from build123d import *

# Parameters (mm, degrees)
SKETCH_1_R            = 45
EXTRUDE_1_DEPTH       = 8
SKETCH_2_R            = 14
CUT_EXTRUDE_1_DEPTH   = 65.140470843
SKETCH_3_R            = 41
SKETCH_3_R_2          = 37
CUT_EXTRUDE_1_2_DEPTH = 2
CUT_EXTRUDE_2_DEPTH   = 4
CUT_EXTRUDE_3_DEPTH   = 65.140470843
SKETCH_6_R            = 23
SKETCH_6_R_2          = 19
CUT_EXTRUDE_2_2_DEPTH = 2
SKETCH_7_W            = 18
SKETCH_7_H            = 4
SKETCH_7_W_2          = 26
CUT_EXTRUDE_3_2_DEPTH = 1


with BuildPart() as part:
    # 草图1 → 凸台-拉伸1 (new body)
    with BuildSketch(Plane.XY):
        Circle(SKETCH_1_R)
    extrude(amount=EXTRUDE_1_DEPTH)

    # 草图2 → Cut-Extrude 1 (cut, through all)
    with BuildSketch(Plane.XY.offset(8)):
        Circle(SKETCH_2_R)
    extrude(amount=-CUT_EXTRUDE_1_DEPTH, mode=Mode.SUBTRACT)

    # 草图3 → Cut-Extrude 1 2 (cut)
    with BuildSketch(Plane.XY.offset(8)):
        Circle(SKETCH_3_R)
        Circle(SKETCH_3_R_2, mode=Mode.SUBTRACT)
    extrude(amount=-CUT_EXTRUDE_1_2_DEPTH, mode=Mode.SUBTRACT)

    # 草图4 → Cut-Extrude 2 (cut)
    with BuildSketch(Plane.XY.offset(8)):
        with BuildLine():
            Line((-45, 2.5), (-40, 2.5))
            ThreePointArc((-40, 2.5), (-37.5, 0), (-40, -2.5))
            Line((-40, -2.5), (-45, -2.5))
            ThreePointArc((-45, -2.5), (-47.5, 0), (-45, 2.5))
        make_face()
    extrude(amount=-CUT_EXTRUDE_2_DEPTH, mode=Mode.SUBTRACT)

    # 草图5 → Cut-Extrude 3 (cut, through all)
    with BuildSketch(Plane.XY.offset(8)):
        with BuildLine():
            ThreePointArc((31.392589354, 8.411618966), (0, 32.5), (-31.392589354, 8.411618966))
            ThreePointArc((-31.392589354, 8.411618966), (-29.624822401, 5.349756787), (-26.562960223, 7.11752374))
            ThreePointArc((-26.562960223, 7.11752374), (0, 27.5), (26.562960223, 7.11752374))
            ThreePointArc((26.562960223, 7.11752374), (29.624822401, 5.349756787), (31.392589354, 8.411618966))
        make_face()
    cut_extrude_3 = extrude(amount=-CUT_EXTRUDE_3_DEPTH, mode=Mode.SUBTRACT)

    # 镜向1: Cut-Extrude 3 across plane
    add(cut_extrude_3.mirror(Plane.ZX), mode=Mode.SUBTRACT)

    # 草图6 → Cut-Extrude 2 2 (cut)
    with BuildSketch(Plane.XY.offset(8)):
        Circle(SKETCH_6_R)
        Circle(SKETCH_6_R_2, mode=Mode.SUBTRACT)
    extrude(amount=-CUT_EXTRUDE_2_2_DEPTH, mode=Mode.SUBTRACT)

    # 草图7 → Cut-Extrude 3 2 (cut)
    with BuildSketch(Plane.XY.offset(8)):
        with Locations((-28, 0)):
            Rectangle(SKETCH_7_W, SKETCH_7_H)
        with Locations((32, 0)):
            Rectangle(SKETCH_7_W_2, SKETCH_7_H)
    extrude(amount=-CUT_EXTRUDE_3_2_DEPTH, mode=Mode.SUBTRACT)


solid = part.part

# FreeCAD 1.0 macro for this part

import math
import FreeCAD as App
import Part
import Sketcher
from FreeCAD import Vector
Q = App.Units.Quantity


def add_polygon(sketch, points):
    """Adds a closed chain of lines whose ends are joined by coincident constraints."""
    first, n = sketch.GeometryCount, len(points)
    for a, b in zip(points, points[1:] + points[:1]):
        sketch.addGeometry(Part.LineSegment(App.Vector(*a, 0), App.Vector(*b, 0)), False)
    for i in range(n):
        sketch.addConstraint(Sketcher.Constraint("Coincident", first + i, 2, first + (i + 1) % n, 1))

doc = App.newDocument("Part")
body = doc.addObject("PartDesign::Body", "Body")

# Sketch on XY plane
sketch1 = body.newObject("Sketcher::SketchObject", "Sketch")
sketch1.AttachmentSupport = (doc.getObject("XY_Plane"), [""])
sketch1.MapMode = "FlatFace"
sketch1.addGeometry(Part.Circle(Vector(0, 0, 0), Vector(0, 0, 1), 45), False)
sketch1.addConstraint(Sketcher.Constraint("Coincident", 0, 3, -1, 1))
sketch1.addConstraint(Sketcher.Constraint("Diameter", 0, Q("90 mm")))
pad1 = body.newObject("PartDesign::Pad", "Pad")
pad1.Profile = sketch1
pad1.Length = 8

# Sketch on XY plane
sketch2 = body.newObject("Sketcher::SketchObject", "Sketch001")
sketch2.AttachmentSupport = (doc.getObject("XY_Plane"), [""])
sketch2.MapMode = "FlatFace"
sketch2.AttachmentOffset = App.Placement(Vector(0, 0, 8), App.Rotation())
sketch2.addGeometry(Part.Circle(Vector(0, 0, 0), Vector(0, 0, 1), 14), False)
sketch2.addConstraint(Sketcher.Constraint("Coincident", 0, 3, -1, 1))
sketch2.addConstraint(Sketcher.Constraint("Diameter", 0, Q("28 mm")))
pocket1 = body.newObject("PartDesign::Pocket", "Pocket")
pocket1.Profile = sketch2
pocket1.Type = "ThroughAll"

# Sketch on XY plane
sketch3 = body.newObject("Sketcher::SketchObject", "Sketch002")
sketch3.AttachmentSupport = (doc.getObject("XY_Plane"), [""])
sketch3.MapMode = "FlatFace"
sketch3.AttachmentOffset = App.Placement(Vector(0, 0, 8), App.Rotation())
sketch3.addGeometry(Part.Circle(Vector(0, 0, 0), Vector(0, 0, 1), 41), False)
sketch3.addGeometry(Part.Circle(Vector(0, 0, 0), Vector(0, 0, 1), 37), False)
sketch3.addConstraint(Sketcher.Constraint("Coincident", 0, 3, -1, 1))
sketch3.addConstraint(Sketcher.Constraint("Coincident", 1, 3, -1, 1))
sketch3.addConstraint(Sketcher.Constraint("Diameter", 0, Q("82 mm")))
sketch3.addConstraint(Sketcher.Constraint("Diameter", 1, Q("74 mm")))
pocket2 = body.newObject("PartDesign::Pocket", "Pocket001")
pocket2.Profile = sketch3
pocket2.Length = 2

# Sketch on XY plane
sketch4 = body.newObject("Sketcher::SketchObject", "Sketch003")
sketch4.AttachmentSupport = (doc.getObject("XY_Plane"), [""])
sketch4.MapMode = "FlatFace"
sketch4.AttachmentOffset = App.Placement(Vector(0, 0, 8), App.Rotation())
sketch4.addGeometry(Part.LineSegment(Vector(-40, 2.5, 0), Vector(-45, 2.5, 0)), False)
sketch4.addGeometry(Part.ArcOfCircle(Part.Circle(Vector(-45, 0, 0), Vector(0, 0, 1), 2.5), math.radians(90), math.radians(270)), False)
sketch4.addGeometry(Part.LineSegment(Vector(-45, -2.5, 0), Vector(-40, -2.5, 0)), False)
sketch4.addGeometry(Part.ArcOfCircle(Part.Circle(Vector(-40, 0, 0), Vector(0, 0, 1), 2.5), math.radians(-90), math.radians(90)), False)
sketch4.addConstraint(Sketcher.Constraint("Tangent", 0, 2, 1, 1))
sketch4.addConstraint(Sketcher.Constraint("Tangent", 1, 2, 2, 1))
sketch4.addConstraint(Sketcher.Constraint("Tangent", 2, 2, 3, 1))
sketch4.addConstraint(Sketcher.Constraint("Tangent", 3, 2, 0, 1))
sketch4.addConstraint(Sketcher.Constraint("Horizontal", 0))
sketch4.addConstraint(Sketcher.Constraint("Horizontal", 2))
sketch4.addConstraint(Sketcher.Constraint("PointOnObject", 1, 3, -1))
sketch4.addConstraint(Sketcher.Constraint("Radius", 1, Q("2.5 mm")))
sketch4.addConstraint(Sketcher.Constraint("DistanceX", 0, 2, 0, 1, Q("5 mm")))
sketch4.addConstraint(Sketcher.Constraint("DistanceX", 1, 3, -1, 1, Q("45 mm")))
pocket3 = body.newObject("PartDesign::Pocket", "Pocket002")
pocket3.Profile = sketch4
pocket3.Length = 4

# Sketch on XY plane
sketch5 = body.newObject("Sketcher::SketchObject", "Sketch004")
sketch5.AttachmentSupport = (doc.getObject("XY_Plane"), [""])
sketch5.MapMode = "FlatFace"
sketch5.AttachmentOffset = App.Placement(Vector(0, 0, 8), App.Rotation())
sketch5.addGeometry(Part.ArcOfCircle(Part.Circle(Vector(0, 0, 0), Vector(0, 0, 1), 32.5), math.radians(15), math.radians(165)), False)
sketch5.addGeometry(Part.ArcOfCircle(Part.Circle(Vector(-28.977775, 7.764571, 0), Vector(0, 0, 1), 2.5), math.radians(165), math.radians(345)), False)
sketch5.addGeometry(Part.ArcOfCircle(Part.Circle(Vector(0, 0, 0), Vector(0, 0, 1), 27.5), math.radians(15), math.radians(165)), False)
sketch5.addGeometry(Part.ArcOfCircle(Part.Circle(Vector(28.977775, 7.764571, 0), Vector(0, 0, 1), 2.5), math.radians(-165), math.radians(15)), False)
sketch5.addConstraint(Sketcher.Constraint("Tangent", 0, 2, 1, 1))
sketch5.addConstraint(Sketcher.Constraint("Tangent", 1, 2, 2, 2))
sketch5.addConstraint(Sketcher.Constraint("Tangent", 2, 1, 3, 1))
sketch5.addConstraint(Sketcher.Constraint("Tangent", 3, 2, 0, 1))
sketch5.addConstraint(Sketcher.Constraint("Coincident", 0, 3, -1, 1))
sketch5.addConstraint(Sketcher.Constraint("Coincident", 2, 3, -1, 1))
sketch5.addConstraint(Sketcher.Constraint("Horizontal", 1, 3, 3, 3))
sketch5.addConstraint(Sketcher.Constraint("Radius", 0, Q("32.5 mm")))
sketch5.addConstraint(Sketcher.Constraint("Radius", 1, Q("2.5 mm")))
sketch5.addConstraint(Sketcher.Constraint("DistanceY", -1, 1, 1, 3, Q("7.764571 mm")))
pocket4 = body.newObject("PartDesign::Pocket", "Pocket003")
pocket4.Profile = sketch5
pocket4.Type = "ThroughAll"
doc.recompute()

mirrored = body.newObject("PartDesign::Mirrored", "Mirrored")
mirrored.Originals = [pocket4]
mirrored.MirrorPlane = (doc.getObject("XZ_Plane"), [""])
body.Tip = mirrored

# Sketch on XY plane
sketch6 = body.newObject("Sketcher::SketchObject", "Sketch005")
sketch6.AttachmentSupport = (doc.getObject("XY_Plane"), [""])
sketch6.MapMode = "FlatFace"
sketch6.AttachmentOffset = App.Placement(Vector(0, 0, 8), App.Rotation())
sketch6.addGeometry(Part.Circle(Vector(0, 0, 0), Vector(0, 0, 1), 23), False)
sketch6.addGeometry(Part.Circle(Vector(0, 0, 0), Vector(0, 0, 1), 19), False)
sketch6.addConstraint(Sketcher.Constraint("Coincident", 0, 3, -1, 1))
sketch6.addConstraint(Sketcher.Constraint("Coincident", 1, 3, -1, 1))
sketch6.addConstraint(Sketcher.Constraint("Diameter", 0, Q("46 mm")))
sketch6.addConstraint(Sketcher.Constraint("Diameter", 1, Q("38 mm")))
pocket5 = body.newObject("PartDesign::Pocket", "Pocket004")
pocket5.Profile = sketch6
pocket5.Length = 2

# Sketch on XY plane
sketch7 = body.newObject("Sketcher::SketchObject", "Sketch006")
sketch7.AttachmentSupport = (doc.getObject("XY_Plane"), [""])
sketch7.MapMode = "FlatFace"
sketch7.AttachmentOffset = App.Placement(Vector(0, 0, 8), App.Rotation())
add_polygon(sketch7, [(-37, 2), (-37, -2), (-19, -2), (-19, 2)])  # lines 0-3
add_polygon(sketch7, [(19, 2), (19, -2), (45, -2), (45, 2)])  # lines 4-7
sketch7.addConstraint(Sketcher.Constraint("Vertical", 0))
sketch7.addConstraint(Sketcher.Constraint("Horizontal", 1))
sketch7.addConstraint(Sketcher.Constraint("Vertical", 2))
sketch7.addConstraint(Sketcher.Constraint("Horizontal", 3))
sketch7.addConstraint(Sketcher.Constraint("Vertical", 4))
sketch7.addConstraint(Sketcher.Constraint("Horizontal", 5))
sketch7.addConstraint(Sketcher.Constraint("Vertical", 6))
sketch7.addConstraint(Sketcher.Constraint("Horizontal", 7))
sketch7.addConstraint(Sketcher.Constraint("Symmetric", 2, 2, 4, 2, -1, 1))
sketch7.addConstraint(Sketcher.Constraint("Horizontal", 1, 2, 4, 2))
sketch7.addConstraint(Sketcher.Constraint("Horizontal", 3, 2, 6, 2))
sketch7.addConstraint(Sketcher.Constraint("DistanceX", 1, 1, 1, 2, Q("18 mm")))
sketch7.addConstraint(Sketcher.Constraint("DistanceX", 5, 1, 5, 2, Q("26 mm")))
sketch7.addConstraint(Sketcher.Constraint("DistanceY", 0, 2, 0, 1, Q("4 mm")))
sketch7.addConstraint(Sketcher.Constraint("DistanceX", 0, 2, -1, 1, Q("37 mm")))
pocket6 = body.newObject("PartDesign::Pocket", "Pocket005")
pocket6.Profile = sketch7
pocket6.Length = 1

doc.recompute()
